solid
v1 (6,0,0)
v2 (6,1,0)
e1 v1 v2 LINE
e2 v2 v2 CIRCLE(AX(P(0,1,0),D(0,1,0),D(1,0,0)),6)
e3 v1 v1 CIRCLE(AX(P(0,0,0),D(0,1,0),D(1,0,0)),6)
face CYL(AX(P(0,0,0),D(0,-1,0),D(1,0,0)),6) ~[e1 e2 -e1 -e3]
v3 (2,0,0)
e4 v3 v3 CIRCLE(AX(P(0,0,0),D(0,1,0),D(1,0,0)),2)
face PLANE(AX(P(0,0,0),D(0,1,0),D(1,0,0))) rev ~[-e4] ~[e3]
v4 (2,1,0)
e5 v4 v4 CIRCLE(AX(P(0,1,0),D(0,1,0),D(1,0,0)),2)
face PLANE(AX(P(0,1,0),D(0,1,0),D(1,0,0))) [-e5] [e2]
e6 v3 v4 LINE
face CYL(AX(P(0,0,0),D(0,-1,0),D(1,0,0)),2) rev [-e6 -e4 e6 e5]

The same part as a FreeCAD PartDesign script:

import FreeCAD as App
import Part
import Sketcher

doc = App.newDocument("Part")
body = doc.addObject("PartDesign::Body", "Body")

# Sketch on XZ plane
sketch1 = body.newObject("Sketcher::SketchObject", "Sketch")
sketch1.AttachmentSupport = (doc.getObject("XZ_Plane"), [""])
sketch1.MapMode = "FlatFace"
sketch1.addGeometry([
    Part.Circle(App.Vector(0, 0, 0), App.Vector(0, 0, 1), 6),
    Part.Circle(App.Vector(0, 0, 0), App.Vector(0, 0, 1), 2),
], False)
sketch1.addConstraint([
    Sketcher.Constraint("Coincident", 0, 3, -1, 1),
    Sketcher.Constraint("Coincident", 1, 3, -1, 1),
    Sketcher.Constraint("Diameter", 0, 12.0),
    Sketcher.Constraint("Diameter", 1, 4.0),
])
pad1 = body.newObject("PartDesign::Pad", "Pad")
pad1.Profile = sketch1
pad1.Length = 1
pad1.Reversed = True

doc.recompute()
